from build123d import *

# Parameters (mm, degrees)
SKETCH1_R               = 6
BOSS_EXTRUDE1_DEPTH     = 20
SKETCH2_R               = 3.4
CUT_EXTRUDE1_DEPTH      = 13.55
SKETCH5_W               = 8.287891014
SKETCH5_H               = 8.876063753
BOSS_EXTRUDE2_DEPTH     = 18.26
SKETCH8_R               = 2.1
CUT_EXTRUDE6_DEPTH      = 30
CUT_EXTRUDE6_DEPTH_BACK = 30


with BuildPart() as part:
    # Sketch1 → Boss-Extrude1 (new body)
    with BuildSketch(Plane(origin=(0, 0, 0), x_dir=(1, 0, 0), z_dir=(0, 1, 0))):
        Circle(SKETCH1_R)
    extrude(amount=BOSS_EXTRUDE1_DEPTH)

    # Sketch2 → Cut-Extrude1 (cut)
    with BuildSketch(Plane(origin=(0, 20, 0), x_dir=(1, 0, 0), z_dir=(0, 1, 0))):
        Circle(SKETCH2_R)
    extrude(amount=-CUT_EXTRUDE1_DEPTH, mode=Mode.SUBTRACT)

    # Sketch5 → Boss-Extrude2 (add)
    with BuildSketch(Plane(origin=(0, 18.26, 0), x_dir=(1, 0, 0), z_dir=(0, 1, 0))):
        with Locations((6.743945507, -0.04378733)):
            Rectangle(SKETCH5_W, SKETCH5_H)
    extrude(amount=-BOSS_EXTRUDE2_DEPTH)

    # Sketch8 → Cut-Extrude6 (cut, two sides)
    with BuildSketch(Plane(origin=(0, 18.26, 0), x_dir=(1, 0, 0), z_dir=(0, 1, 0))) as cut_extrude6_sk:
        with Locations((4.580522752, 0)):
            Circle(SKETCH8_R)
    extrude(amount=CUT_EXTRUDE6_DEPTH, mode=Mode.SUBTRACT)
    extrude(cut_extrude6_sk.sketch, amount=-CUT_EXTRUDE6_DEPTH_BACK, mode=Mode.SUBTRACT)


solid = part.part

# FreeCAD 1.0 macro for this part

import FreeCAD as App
import Part
import Sketcher

doc = App.newDocument("Part")
body = doc.addObject("PartDesign::Body", "Body")

# Sketch on XZ plane
sketch1 = body.newObject("Sketcher::SketchObject", "Sketch")
sketch1.AttachmentSupport = (doc.getObject("XZ_Plane"), [""])
sketch1.MapMode = "FlatFace"
sketch1.addGeometry(Part.Circle(App.Vector(0, 0, 0), App.Vector(0, 0, 1), 6), False)
sketch1.addConstraint(Sketcher.Constraint("Coincident", 0, 3, -1, 1))
sketch1.addConstraint(Sketcher.Constraint("Diameter", 0, 12.0))
pad1 = body.newObject("PartDesign::Pad", "Pad")
pad1.Profile = sketch1
pad1.Length = 20
pad1.Reversed = True

# Sketch on XZ plane
sketch2 = body.newObject("Sketcher::SketchObject", "Sketch001")
sketch2.AttachmentSupport = (doc.getObject("XZ_Plane"), [""])
sketch2.MapMode = "FlatFace"
sketch2.AttachmentOffset = App.Placement(App.Vector(0, 0, -20), App.Rotation())
sketch2.addGeometry(Part.Circle(App.Vector(0, 0, 0), App.Vector(0, 0, 1), 3.4), False)
sketch2.addConstraint(Sketcher.Constraint("Coincident", 0, 3, -1, 1))
sketch2.addConstraint(Sketcher.Constraint("Diameter", 0, 6.8))
pocket1 = body.newObject("PartDesign::Pocket", "Pocket")
pocket1.Profile = sketch2
pocket1.Length = 13.55
pocket1.Reversed = True

# Sketch on XZ plane
sketch3 = body.newObject("Sketcher::SketchObject", "Sketch002")
sketch3.AttachmentSupport = (doc.getObject("XZ_Plane"), [""])
sketch3.MapMode = "FlatFace"
sketch3.AttachmentOffset = App.Placement(App.Vector(0, 0, -18.26), App.Rotation())
sketch3.addGeometry(Part.LineSegment(App.Vector(3, -4, 0), App.Vector(3, 4, 0)), False)
sketch3.addGeometry(Part.LineSegment(App.Vector(3, 4, 0), App.Vector(11, 4, 0)), False)
sketch3.addGeometry(Part.LineSegment(App.Vector(11, 4, 0), App.Vector(11, -4, 0)), False)
sketch3.addGeometry(Part.LineSegment(App.Vector(11, -4, 0), App.Vector(3, -4, 0)), False)
sketch3.addConstraint(Sketcher.Constraint("Coincident", 0, 2, 1, 1))
sketch3.addConstraint(Sketcher.Constraint("Coincident", 1, 2, 2, 1))
sketch3.addConstraint(Sketcher.Constraint("Coincident", 2, 2, 3, 1))
sketch3.addConstraint(Sketcher.Constraint("Coincident", 3, 2, 0, 1))
sketch3.addConstraint(Sketcher.Constraint("Vertical", 0))
sketch3.addConstraint(Sketcher.Constraint("Horizontal", 1))
sketch3.addConstraint(Sketcher.Constraint("Vertical", 2))
sketch3.addConstraint(Sketcher.Constraint("Horizontal", 3))
sketch3.addConstraint(Sketcher.Constraint("DistanceX", -1, 1, 0, 2, 2.6))
sketch3.addConstraint(Sketcher.Constraint("DistanceX", 1, 1, 1, 2, 8.287891))
sketch3.addConstraint(Sketcher.Constraint("DistanceY", 0, 1, 0, 2, 8.876064))
sketch3.addConstraint(Sketcher.Constraint("DistanceY", -1, 1, 0, 2, 4.481819))
pad2 = body.newObject("PartDesign::Pad", "Pad001")
pad2.Profile = sketch3
pad2.Length = 18.26

# Sketch on XZ plane
sketch4 = body.newObject("Sketcher::SketchObject", "Sketch003")
sketch4.AttachmentSupport = (doc.getObject("XZ_Plane"), [""])
sketch4.MapMode = "FlatFace"
sketch4.AttachmentOffset = App.Placement(App.Vector(0, 0, -18.26), App.Rotation())
sketch4.addGeometry(Part.Circle(App.Vector(4.6, 0, 0), App.Vector(0, 0, 1), 2.1), False)
sketch4.addConstraint(Sketcher.Constraint("PointOnObject", 0, 3, -1))
sketch4.addConstraint(Sketcher.Constraint("Diameter", 0, 4.2))
sketch4.addConstraint(Sketcher.Constraint("DistanceX", -1, 1, 0, 3, 4.580523))
pocket2 = body.newObject("PartDesign::Pocket", "Pocket001")
pocket2.Profile = sketch4
pocket2.Type = "ThroughAll"
pocket2.Midplane = True

doc.recompute()
